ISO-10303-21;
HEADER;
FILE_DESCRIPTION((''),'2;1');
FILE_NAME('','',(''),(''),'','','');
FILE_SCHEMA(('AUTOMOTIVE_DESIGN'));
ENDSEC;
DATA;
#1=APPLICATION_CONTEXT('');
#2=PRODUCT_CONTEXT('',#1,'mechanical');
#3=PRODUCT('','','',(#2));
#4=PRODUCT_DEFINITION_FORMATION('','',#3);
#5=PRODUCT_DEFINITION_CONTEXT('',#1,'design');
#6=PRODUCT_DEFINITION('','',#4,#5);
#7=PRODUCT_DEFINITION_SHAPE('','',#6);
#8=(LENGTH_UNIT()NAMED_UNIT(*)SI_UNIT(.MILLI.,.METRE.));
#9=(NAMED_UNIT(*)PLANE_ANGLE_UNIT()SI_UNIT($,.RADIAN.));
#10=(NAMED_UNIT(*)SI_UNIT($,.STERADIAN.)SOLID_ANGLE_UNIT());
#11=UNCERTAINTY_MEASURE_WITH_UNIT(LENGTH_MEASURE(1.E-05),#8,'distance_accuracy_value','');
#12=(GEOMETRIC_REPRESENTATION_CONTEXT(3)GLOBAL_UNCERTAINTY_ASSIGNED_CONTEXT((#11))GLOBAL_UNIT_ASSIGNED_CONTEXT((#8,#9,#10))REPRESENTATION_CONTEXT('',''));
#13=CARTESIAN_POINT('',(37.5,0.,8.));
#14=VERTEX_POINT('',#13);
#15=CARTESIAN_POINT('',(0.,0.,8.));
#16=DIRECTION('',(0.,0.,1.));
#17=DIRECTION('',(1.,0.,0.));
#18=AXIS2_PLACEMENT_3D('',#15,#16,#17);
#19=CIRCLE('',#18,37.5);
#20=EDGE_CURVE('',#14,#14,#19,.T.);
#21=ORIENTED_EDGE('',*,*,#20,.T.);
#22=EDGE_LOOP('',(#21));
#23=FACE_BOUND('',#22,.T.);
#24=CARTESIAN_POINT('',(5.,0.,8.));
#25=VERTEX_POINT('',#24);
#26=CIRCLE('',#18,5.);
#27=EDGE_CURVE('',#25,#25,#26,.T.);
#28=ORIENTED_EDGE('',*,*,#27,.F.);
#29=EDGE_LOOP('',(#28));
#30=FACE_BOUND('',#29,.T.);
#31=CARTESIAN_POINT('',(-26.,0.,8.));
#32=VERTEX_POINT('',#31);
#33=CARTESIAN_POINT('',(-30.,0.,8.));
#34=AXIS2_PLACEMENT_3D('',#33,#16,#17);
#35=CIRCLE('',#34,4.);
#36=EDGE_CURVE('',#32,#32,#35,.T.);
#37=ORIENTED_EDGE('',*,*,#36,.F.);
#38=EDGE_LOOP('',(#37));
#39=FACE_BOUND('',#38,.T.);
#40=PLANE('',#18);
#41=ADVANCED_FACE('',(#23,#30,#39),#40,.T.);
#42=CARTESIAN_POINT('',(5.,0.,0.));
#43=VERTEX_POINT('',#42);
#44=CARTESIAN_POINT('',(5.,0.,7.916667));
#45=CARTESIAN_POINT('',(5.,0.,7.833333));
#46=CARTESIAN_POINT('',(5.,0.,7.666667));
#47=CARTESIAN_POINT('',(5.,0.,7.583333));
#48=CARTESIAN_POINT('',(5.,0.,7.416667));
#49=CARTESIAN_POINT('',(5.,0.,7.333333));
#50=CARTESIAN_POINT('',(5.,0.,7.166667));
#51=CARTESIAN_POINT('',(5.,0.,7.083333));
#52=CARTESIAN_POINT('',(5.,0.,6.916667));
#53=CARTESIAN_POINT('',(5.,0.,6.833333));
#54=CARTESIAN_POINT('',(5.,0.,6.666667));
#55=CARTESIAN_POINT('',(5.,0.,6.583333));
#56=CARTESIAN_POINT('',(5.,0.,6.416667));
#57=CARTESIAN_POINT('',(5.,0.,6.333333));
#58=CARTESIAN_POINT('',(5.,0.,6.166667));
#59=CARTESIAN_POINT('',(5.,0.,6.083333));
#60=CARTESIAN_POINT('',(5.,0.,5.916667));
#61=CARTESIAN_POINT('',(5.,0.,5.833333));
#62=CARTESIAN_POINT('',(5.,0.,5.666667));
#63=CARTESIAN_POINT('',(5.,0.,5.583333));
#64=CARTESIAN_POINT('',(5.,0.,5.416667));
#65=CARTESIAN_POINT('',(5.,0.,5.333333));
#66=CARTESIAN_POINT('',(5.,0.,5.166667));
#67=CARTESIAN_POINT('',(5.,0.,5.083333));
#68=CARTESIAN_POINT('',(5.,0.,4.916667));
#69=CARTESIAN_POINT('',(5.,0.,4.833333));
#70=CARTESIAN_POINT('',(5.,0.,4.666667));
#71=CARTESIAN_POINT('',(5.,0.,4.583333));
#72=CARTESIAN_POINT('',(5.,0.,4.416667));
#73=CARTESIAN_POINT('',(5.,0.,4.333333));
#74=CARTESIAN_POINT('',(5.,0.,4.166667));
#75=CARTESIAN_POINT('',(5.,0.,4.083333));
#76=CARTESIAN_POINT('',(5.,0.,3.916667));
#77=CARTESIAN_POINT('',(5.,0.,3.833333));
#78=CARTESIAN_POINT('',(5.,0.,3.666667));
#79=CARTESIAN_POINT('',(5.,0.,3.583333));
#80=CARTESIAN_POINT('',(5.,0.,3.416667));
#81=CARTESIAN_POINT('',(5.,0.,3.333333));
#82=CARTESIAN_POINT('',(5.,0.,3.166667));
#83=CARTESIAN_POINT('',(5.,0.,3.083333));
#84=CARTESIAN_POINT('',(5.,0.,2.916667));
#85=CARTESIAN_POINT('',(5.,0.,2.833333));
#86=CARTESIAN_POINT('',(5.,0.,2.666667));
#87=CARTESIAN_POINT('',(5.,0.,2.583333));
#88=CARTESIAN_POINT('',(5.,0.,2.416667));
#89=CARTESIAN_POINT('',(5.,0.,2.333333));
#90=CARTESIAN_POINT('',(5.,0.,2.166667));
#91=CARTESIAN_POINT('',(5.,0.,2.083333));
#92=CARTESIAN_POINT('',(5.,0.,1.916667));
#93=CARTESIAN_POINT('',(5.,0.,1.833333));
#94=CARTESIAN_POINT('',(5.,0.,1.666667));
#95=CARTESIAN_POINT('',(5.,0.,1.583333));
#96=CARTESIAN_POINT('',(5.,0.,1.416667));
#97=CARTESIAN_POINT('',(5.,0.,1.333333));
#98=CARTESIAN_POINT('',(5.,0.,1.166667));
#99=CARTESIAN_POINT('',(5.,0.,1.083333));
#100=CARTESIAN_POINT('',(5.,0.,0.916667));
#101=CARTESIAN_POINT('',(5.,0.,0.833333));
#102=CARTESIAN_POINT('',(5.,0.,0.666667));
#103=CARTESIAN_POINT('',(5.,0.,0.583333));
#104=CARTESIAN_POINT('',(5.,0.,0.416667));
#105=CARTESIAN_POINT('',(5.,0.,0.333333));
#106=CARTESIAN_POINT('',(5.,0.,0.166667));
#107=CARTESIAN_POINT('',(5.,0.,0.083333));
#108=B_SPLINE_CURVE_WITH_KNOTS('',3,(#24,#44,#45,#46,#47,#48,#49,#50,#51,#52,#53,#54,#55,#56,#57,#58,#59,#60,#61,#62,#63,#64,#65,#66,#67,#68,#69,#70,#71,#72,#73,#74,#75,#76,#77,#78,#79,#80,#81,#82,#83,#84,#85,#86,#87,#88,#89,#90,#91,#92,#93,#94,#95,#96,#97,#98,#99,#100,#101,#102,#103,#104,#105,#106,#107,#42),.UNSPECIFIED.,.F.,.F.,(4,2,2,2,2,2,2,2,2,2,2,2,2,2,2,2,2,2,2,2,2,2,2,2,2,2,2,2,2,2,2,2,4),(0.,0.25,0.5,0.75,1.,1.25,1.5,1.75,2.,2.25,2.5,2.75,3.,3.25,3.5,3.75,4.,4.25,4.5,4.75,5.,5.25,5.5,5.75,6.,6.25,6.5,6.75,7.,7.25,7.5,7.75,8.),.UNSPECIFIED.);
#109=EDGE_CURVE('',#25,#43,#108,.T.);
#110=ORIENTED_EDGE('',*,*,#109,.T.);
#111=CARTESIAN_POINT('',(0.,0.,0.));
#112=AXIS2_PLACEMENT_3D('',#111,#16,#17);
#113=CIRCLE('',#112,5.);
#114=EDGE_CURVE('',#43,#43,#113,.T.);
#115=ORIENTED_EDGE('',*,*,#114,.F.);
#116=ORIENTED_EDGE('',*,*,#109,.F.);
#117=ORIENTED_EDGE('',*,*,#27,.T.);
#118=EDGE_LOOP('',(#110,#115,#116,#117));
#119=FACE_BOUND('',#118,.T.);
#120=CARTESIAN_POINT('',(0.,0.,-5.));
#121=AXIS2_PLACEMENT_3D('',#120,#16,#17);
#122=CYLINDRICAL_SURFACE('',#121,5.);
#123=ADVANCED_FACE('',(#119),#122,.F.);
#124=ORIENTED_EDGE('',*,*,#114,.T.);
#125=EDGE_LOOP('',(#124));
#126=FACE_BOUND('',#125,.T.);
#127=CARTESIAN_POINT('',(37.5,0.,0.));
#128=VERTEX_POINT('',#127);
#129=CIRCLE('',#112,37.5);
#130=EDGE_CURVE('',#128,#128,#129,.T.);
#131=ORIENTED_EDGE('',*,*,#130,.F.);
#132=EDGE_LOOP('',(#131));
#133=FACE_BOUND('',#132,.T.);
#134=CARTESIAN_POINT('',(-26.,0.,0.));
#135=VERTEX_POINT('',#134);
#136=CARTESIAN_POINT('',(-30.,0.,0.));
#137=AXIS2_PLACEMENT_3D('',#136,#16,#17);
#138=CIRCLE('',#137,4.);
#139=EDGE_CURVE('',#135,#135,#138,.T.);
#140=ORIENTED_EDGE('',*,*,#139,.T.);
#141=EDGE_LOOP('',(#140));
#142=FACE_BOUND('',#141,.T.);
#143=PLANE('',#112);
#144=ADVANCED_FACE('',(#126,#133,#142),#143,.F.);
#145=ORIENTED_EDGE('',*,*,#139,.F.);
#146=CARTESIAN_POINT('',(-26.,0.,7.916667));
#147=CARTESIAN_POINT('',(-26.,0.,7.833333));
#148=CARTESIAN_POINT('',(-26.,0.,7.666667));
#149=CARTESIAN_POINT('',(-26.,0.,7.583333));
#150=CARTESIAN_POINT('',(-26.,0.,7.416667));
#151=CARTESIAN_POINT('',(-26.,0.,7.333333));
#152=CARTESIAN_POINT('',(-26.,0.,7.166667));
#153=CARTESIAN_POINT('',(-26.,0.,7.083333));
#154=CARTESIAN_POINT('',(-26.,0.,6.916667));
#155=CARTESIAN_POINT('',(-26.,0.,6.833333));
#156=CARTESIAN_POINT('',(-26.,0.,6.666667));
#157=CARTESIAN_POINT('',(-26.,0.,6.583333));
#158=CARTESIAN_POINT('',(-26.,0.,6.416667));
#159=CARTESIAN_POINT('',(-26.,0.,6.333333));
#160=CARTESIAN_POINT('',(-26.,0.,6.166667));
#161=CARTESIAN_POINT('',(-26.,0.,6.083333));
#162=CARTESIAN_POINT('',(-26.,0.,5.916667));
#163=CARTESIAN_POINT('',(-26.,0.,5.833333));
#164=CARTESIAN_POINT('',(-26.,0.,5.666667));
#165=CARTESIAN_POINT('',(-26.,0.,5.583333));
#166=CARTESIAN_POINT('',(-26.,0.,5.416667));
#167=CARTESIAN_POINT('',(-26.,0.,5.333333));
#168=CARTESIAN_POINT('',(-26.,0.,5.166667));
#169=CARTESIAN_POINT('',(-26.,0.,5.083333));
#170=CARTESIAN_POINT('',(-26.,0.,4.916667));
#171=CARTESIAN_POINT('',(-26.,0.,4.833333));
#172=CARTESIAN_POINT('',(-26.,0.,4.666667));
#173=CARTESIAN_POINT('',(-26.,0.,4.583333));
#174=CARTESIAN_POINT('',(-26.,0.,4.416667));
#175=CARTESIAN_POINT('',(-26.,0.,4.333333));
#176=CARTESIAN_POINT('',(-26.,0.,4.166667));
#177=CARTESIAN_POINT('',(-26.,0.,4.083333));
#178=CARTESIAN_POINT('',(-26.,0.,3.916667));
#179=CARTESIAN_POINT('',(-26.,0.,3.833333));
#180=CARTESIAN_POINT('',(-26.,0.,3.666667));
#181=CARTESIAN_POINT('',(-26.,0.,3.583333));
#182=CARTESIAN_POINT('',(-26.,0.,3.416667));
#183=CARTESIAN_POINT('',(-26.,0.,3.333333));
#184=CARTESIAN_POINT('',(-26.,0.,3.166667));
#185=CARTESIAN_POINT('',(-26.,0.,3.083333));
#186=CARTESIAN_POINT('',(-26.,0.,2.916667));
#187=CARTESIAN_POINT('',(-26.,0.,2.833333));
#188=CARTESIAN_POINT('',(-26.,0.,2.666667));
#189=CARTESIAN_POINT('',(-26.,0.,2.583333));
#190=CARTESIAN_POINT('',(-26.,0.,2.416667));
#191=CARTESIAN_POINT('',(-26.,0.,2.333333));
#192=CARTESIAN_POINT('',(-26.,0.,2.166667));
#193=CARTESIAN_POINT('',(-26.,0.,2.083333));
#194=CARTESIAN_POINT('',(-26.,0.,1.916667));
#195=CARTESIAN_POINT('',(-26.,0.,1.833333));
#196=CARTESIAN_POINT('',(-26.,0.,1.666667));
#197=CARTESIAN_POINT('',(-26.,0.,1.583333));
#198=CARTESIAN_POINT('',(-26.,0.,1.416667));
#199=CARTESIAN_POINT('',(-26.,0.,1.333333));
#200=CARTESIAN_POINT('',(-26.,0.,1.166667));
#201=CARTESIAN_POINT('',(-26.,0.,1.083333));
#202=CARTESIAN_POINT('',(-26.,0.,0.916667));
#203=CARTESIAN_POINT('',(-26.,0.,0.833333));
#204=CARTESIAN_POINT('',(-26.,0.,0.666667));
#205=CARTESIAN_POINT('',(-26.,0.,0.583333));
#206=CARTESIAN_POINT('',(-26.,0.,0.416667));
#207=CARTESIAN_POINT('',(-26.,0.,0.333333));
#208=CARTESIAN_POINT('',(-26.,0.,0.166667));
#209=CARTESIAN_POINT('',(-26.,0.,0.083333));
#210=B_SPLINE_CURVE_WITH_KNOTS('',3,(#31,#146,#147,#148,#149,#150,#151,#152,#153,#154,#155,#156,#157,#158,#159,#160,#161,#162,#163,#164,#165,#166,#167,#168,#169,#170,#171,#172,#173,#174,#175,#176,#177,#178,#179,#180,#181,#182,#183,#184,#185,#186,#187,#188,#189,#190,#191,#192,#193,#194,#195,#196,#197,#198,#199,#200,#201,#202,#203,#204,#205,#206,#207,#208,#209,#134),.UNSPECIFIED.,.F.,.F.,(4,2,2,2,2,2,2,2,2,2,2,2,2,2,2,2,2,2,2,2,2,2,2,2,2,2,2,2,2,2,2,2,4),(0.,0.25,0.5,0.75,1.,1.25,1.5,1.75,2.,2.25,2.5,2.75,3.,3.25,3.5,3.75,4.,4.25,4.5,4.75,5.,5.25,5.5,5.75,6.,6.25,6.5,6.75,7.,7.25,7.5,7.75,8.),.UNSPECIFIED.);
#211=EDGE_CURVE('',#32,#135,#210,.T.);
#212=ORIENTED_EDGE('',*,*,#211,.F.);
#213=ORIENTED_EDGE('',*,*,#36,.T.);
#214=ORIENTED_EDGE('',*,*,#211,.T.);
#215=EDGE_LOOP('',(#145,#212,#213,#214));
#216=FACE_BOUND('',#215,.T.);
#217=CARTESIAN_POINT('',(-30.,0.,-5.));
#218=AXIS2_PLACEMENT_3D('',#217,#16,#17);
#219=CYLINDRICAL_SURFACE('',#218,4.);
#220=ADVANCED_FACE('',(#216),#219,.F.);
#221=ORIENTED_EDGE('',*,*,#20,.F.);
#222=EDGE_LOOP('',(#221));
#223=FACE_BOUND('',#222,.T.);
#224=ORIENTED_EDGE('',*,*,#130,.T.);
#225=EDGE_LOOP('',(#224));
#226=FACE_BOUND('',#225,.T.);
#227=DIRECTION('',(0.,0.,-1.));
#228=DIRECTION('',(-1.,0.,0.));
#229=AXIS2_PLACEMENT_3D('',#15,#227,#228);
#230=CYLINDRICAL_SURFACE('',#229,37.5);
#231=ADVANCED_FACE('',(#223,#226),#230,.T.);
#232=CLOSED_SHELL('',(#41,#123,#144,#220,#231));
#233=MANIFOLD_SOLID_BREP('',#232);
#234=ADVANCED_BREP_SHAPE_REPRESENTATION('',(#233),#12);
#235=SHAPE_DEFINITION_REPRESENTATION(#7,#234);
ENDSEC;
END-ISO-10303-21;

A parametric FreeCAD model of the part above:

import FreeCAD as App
import Part
import Sketcher

doc = App.newDocument("Part")
body = doc.addObject("PartDesign::Body", "Body")

# Sketch on XY plane
sketch1 = body.newObject("Sketcher::SketchObject", "Sketch")
sketch1.AttachmentSupport = (doc.getObject("XY_Plane"), [""])
sketch1.MapMode = "FlatFace"
sketch1.addGeometry(Part.Circle(App.Vector(0, 0, 0), App.Vector(0, 0, 1), 38), False)
sketch1.addConstraint([
    Sketcher.Constraint("Coincident", 0, 3, -1, 1),
    Sketcher.Constraint("Diameter", 0, 75.0),
])
pad1 = body.newObject("PartDesign::Pad", "Pad")
pad1.Profile = sketch1
pad1.Length = 8

# Sketch on XY plane
sketch2 = body.newObject("Sketcher::SketchObject", "Sketch001")
sketch2.AttachmentSupport = (doc.getObject("XY_Plane"), [""])
sketch2.MapMode = "FlatFace"
sketch2.AttachmentOffset = App.Placement(App.Vector(0, 0, 8), App.Rotation())
sketch2.addGeometry(Part.Circle(App.Vector(-30, 0, 0), App.Vector(0, 0, 1), 4), False)
sketch2.addConstraint([
    Sketcher.Constraint("PointOnObject", 0, 3, -1),
    Sketcher.Constraint("Diameter", 0, 8.0),
    Sketcher.Constraint("DistanceX", 0, 3, -1, 1, 30.0),
])
pocket1 = body.newObject("PartDesign::Pocket", "Pocket")
pocket1.Profile = sketch2
pocket1.Length = 13

# Sketch on XY plane
sketch3 = body.newObject("Sketcher::SketchObject", "Sketch002")
sketch3.AttachmentSupport = (doc.getObject("XY_Plane"), [""])
sketch3.MapMode = "FlatFace"
sketch3.AttachmentOffset = App.Placement(App.Vector(0, 0, 8), App.Rotation())
sketch3.addGeometry(Part.Circle(App.Vector(0, 0, 0), App.Vector(0, 0, 1), 5), False)
sketch3.addConstraint([
    Sketcher.Constraint("Coincident", 0, 3, -1, 1),
    Sketcher.Constraint("Diameter", 0, 10.0),
])
pocket2 = body.newObject("PartDesign::Pocket", "Pocket001")
pocket2.Profile = sketch3
pocket2.Length = 13

doc.recompute()
